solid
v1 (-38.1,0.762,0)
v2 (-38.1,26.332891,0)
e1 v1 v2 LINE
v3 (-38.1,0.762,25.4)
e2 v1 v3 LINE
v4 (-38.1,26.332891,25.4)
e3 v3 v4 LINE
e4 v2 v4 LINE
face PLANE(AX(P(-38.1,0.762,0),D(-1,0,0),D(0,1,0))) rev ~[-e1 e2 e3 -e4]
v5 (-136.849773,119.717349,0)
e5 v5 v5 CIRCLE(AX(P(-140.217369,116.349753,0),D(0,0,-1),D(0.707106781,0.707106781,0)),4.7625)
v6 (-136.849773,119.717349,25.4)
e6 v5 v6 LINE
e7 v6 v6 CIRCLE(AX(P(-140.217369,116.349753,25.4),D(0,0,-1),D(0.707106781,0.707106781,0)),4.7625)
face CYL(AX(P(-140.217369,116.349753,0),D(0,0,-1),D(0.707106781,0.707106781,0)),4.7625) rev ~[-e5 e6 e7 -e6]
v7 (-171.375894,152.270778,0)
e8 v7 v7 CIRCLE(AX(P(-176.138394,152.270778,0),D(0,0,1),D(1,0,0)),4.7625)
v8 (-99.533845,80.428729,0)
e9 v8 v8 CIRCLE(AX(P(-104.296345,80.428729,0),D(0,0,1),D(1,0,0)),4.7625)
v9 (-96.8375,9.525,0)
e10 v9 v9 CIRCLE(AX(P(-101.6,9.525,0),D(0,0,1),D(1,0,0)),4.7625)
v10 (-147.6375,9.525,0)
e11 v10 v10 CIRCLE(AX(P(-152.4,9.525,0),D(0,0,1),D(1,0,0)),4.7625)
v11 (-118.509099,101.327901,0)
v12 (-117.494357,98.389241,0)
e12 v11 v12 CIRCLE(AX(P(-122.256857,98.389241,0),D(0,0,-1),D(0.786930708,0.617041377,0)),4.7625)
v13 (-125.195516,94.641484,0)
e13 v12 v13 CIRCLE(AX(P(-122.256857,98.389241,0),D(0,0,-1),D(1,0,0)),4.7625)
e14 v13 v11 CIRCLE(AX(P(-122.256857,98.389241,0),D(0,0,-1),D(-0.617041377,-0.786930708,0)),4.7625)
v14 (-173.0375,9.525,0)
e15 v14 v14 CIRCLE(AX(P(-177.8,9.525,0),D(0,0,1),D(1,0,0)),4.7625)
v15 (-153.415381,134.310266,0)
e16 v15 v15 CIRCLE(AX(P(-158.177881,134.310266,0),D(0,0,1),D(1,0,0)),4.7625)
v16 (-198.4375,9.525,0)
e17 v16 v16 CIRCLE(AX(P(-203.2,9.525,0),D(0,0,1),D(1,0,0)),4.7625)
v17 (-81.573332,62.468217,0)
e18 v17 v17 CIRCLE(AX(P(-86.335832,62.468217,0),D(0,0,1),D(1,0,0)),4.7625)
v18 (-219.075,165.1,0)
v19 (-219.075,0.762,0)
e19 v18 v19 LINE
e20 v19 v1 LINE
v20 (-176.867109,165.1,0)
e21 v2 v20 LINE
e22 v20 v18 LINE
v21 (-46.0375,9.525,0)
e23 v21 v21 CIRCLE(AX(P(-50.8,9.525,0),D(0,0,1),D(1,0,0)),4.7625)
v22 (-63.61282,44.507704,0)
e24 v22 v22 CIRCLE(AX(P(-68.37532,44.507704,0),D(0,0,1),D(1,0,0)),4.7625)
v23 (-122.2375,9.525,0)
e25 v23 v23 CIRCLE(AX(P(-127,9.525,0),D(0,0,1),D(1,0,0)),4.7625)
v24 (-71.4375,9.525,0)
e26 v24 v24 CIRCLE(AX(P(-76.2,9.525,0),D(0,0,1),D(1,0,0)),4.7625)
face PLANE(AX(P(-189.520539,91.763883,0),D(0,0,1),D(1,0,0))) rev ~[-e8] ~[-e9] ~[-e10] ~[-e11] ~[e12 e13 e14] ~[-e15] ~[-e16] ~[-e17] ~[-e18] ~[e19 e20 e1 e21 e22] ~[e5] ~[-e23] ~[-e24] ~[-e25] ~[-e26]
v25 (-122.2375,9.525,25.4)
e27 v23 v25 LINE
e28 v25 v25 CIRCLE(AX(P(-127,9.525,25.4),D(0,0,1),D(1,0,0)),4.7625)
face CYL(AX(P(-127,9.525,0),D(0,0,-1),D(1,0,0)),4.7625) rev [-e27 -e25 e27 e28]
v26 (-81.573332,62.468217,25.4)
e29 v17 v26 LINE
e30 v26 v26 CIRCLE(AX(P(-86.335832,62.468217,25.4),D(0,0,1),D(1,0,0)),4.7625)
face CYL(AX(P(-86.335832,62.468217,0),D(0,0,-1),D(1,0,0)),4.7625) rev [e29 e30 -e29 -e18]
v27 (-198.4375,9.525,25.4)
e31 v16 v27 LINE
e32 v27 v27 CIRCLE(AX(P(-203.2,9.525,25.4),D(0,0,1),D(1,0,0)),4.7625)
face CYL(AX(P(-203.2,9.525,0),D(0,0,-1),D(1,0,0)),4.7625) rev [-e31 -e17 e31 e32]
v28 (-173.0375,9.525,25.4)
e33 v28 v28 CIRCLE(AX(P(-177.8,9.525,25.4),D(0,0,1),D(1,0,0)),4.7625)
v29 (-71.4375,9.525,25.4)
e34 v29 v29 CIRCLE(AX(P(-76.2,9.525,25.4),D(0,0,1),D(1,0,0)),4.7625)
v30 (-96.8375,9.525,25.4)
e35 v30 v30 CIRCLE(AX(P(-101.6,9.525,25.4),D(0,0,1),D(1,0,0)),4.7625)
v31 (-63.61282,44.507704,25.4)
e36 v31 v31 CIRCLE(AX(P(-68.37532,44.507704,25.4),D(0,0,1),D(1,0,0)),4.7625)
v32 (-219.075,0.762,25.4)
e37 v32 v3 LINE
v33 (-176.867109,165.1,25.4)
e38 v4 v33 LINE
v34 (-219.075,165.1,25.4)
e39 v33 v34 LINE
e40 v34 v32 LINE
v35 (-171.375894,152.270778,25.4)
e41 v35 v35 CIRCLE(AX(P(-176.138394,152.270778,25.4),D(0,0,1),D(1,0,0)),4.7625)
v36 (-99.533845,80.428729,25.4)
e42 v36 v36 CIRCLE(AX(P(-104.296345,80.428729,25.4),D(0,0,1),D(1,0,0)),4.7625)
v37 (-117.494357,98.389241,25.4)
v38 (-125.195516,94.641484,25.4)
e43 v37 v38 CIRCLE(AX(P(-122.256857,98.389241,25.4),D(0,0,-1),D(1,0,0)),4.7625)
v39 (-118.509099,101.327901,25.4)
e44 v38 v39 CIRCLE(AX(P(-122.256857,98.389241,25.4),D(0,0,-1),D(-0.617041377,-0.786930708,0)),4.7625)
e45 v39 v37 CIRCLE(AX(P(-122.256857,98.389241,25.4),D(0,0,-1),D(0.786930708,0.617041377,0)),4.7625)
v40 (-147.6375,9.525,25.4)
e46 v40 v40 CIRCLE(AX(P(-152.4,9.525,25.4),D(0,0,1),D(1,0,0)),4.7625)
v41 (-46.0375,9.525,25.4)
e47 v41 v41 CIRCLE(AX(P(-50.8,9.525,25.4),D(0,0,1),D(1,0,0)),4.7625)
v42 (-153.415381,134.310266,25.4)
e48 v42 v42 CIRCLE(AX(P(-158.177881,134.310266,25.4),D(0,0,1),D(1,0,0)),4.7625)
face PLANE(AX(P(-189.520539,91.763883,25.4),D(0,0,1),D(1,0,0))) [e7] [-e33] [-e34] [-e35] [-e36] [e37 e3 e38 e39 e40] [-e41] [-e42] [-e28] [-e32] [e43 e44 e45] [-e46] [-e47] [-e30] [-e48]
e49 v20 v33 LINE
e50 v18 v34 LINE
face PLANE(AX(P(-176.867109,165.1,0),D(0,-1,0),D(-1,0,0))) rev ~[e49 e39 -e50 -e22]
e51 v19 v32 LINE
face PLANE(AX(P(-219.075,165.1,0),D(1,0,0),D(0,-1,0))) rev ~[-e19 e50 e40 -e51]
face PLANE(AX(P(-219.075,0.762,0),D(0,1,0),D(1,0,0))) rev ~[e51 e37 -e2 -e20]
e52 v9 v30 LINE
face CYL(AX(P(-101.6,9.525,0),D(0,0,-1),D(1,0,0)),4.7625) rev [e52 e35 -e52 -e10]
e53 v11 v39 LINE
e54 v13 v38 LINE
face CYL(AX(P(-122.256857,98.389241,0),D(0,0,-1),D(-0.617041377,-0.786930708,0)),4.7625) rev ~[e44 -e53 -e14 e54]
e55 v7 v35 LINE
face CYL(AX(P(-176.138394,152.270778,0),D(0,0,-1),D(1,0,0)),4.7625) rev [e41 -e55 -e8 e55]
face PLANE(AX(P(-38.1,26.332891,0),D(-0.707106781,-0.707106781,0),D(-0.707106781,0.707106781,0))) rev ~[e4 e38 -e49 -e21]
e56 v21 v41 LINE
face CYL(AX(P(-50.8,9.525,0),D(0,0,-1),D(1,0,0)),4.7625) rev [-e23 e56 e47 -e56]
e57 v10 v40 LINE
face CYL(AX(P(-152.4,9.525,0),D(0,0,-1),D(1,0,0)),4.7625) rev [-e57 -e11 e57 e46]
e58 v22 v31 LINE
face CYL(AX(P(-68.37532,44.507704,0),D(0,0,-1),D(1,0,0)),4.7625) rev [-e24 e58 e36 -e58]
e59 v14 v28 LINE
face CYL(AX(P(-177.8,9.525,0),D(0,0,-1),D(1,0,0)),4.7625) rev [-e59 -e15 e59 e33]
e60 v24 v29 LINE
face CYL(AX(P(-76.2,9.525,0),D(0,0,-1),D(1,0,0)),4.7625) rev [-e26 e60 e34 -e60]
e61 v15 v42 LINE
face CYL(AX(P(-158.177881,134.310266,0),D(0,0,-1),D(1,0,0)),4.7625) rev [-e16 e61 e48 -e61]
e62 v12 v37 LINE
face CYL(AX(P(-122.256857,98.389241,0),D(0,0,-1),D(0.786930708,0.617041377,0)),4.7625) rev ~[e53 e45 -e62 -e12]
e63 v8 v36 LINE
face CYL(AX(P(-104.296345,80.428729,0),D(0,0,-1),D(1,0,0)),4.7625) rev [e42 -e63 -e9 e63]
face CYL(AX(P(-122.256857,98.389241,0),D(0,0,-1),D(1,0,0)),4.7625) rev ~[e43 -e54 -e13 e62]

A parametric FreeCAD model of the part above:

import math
import FreeCAD as App
import Part
import Sketcher
from FreeCAD import Vector
Q = App.Units.Quantity


def add_polygon(sketch, points):
    """Adds a closed chain of lines whose ends are joined by coincident constraints."""
    first, n = sketch.GeometryCount, len(points)
    for a, b in zip(points, points[1:] + points[:1]):
        sketch.addGeometry(Part.LineSegment(App.Vector(*a, 0), App.Vector(*b, 0)), False)
    for i in range(n):
        sketch.addConstraint(Sketcher.Constraint("Coincident", first + i, 2, first + (i + 1) % n, 1))

doc = App.newDocument("Part")
body = doc.addObject("PartDesign::Body", "Body")

# Sketch on XY plane
sketch1 = body.newObject("Sketcher::SketchObject", "Sketch")
sketch1.AttachmentSupport = (doc.getObject("XY_Plane"), [""])
sketch1.MapMode = "FlatFace"
add_polygon(sketch1, [(-176.9, 165.1), (-219.1, 165.1), (-219.1, 0.8), (-38.1, 0.8), (-38.1, 26.3)])  # lines 0-4
sketch1.addGeometry(Part.Circle(Vector(-203.2, 9.5, 0), Vector(0, 0, 1), 4.8), False)  # 5
sketch1.addGeometry(Part.Circle(Vector(-177.8, 9.5, 0), Vector(0, 0, 1), 4.8), False)  # 6
sketch1.addGeometry(Part.Circle(Vector(-152.4, 9.5, 0), Vector(0, 0, 1), 4.8), False)  # 7
sketch1.addGeometry(Part.Circle(Vector(-127, 9.5, 0), Vector(0, 0, 1), 4.8), False)  # 8
sketch1.addGeometry(Part.Circle(Vector(-101.6, 9.5, 0), Vector(0, 0, 1), 4.8), False)  # 9
sketch1.addGeometry(Part.Circle(Vector(-76.2, 9.5, 0), Vector(0, 0, 1), 4.8), False)  # 10
sketch1.addGeometry(Part.Circle(Vector(-50.8, 9.5, 0), Vector(0, 0, 1), 4.8), False)  # 11
sketch1.addGeometry(Part.Circle(Vector(-104.3, 80.4, 0), Vector(0, 0, 1), 4.8), False)  # 12
sketch1.addGeometry(Part.Circle(Vector(-68.4, 44.5, 0), Vector(0, 0, 1), 4.8), False)  # 13
sketch1.addGeometry(Part.Circle(Vector(-86.3, 62.5, 0), Vector(0, 0, 1), 4.8), False)  # 14
sketch1.addGeometry(Part.Circle(Vector(-140.2, 116.3, 0), Vector(0, 0, 1), 4.8), False)  # 15
sketch1.addGeometry(Part.Circle(Vector(-176.1, 152.3, 0), Vector(0, 0, 1), 4.8), False)  # 16
sketch1.addGeometry(Part.Circle(Vector(-158.2, 134.3, 0), Vector(0, 0, 1), 4.8), False)  # 17
sketch1.addGeometry(Part.ArcOfCircle(Part.Circle(Vector(-122.3, 98.4, 0), Vector(0, 0, 1), 4.8), math.radians(38), math.radians(232)), False)  # 18
sketch1.addGeometry(Part.ArcOfCircle(Part.Circle(Vector(-122.3, 98.4, 0), Vector(0, 0, 1), 4.8), math.radians(0), math.radians(38)), False)  # 19
sketch1.addGeometry(Part.ArcOfCircle(Part.Circle(Vector(-122.3, 98.4, 0), Vector(0, 0, 1), 4.8), math.radians(-128), math.radians(0)), False)  # 20
sketch1.addConstraint([
    Sketcher.Constraint("Tangent", 18, 1, 19, 2),
    Sketcher.Constraint("Tangent", 19, 1, 20, 2),
    Sketcher.Constraint("Tangent", 20, 1, 18, 2),
    Sketcher.Constraint("Horizontal", 0),
    Sketcher.Constraint("Vertical", 1),
    Sketcher.Constraint("Horizontal", 2),
    Sketcher.Constraint("Vertical", 3),
    Sketcher.Constraint("Equal", 5, 6),
    Sketcher.Constraint("Equal", 6, 7),
    Sketcher.Constraint("Equal", 7, 8),
    Sketcher.Constraint("Equal", 8, 9),
    Sketcher.Constraint("Equal", 9, 10),
    Sketcher.Constraint("Equal", 10, 11),
    Sketcher.Constraint("Equal", 11, 12),
    Sketcher.Constraint("Equal", 12, 13),
    Sketcher.Constraint("Equal", 13, 14),
    Sketcher.Constraint("Equal", 14, 15),
    Sketcher.Constraint("Equal", 15, 16),
    Sketcher.Constraint("Equal", 16, 17),
    Sketcher.Constraint("Equal", 17, 18),
    Sketcher.Constraint("Horizontal", 5, 3, 6, 3),
    Sketcher.Constraint("Horizontal", 6, 3, 7, 3),
    Sketcher.Constraint("Horizontal", 7, 3, 8, 3),
    Sketcher.Constraint("Horizontal", 8, 3, 9, 3),
    Sketcher.Constraint("Horizontal", 9, 3, 10, 3),
    Sketcher.Constraint("Horizontal", 10, 3, 11, 3),
    Sketcher.Constraint("Horizontal", 20, 3, 19, 1),
    Sketcher.Constraint("Diameter", 5, Q("0.375 in")),
    Sketcher.Constraint("DistanceX", 5, 3, -1, 1, Q("8 in")),
    Sketcher.Constraint("DistanceX", 6, 3, -1, 1, Q("7 in")),
    Sketcher.Constraint("DistanceX", 7, 3, -1, 1, Q("6 in")),
    Sketcher.Constraint("DistanceX", 8, 3, -1, 1, Q("5 in")),
    Sketcher.Constraint("DistanceX", 9, 3, -1, 1, Q("4 in")),
    Sketcher.Constraint("DistanceX", 10, 3, -1, 1, Q("3 in")),
    Sketcher.Constraint("DistanceX", 11, 3, -1, 1, Q("2 in")),
    Sketcher.Constraint("Angle", 4, Q("135 deg")),
    Sketcher.Constraint("DistanceY", 1, 2, 1, 1, Q("6.47 in")),
    Sketcher.Constraint("DistanceY", -1, 1, 0, 2, Q("6.5 in")),
    Sketcher.Constraint("DistanceX", 2, 2, -1, 1, Q("1.5 in")),
    Sketcher.Constraint("DistanceX", 2, 1, 2, 2, Q("7.125 in")),
    Sketcher.Constraint("DistanceY", -1, 1, 5, 3, Q("0.375 in")),
    Sketcher.Constraint("DistanceX", 0, 2, 0, 1, Q("42.207891 mm")),
    Sketcher.Constraint("DistanceX", 18, 1, -1, 1, Q("118.509099 mm")),
    Sketcher.Constraint("DistanceY", -1, 1, 18, 1, Q("101.327901 mm")),
    Sketcher.Constraint("DistanceY", -1, 1, 12, 3, Q("80.428729 mm")),
    Sketcher.Constraint("DistanceX", 13, 3, -1, 1, Q("68.37532 mm")),
    Sketcher.Constraint("DistanceX", 15, 3, -1, 1, Q("140.217369 mm")),
    Sketcher.Constraint("DistanceX", 17, 3, -1, 1, Q("158.177881 mm")),
    Sketcher.Constraint("DistanceY", -1, 1, 18, 3, Q("98.389241 mm")),
    Sketcher.Constraint("DistanceY", 13, 3, 15, 3, Q("71.842049 mm")),
    Sketcher.Constraint("DistanceX", 16, 3, 12, 3, Q("71.842049 mm")),
    Sketcher.Constraint("DistanceY", 12, 3, 16, 3, Q("71.842049 mm")),
    Sketcher.Constraint("DistanceX", 16, 3, 14, 3, Q("89.802561 mm")),
    Sketcher.Constraint("DistanceY", 14, 3, 16, 3, Q("89.802561 mm")),
    Sketcher.Constraint("DistanceX", 17, 3, 14, 3, Q("71.842049 mm")),
    Sketcher.Constraint("DistanceY", 14, 3, 17, 3, Q("71.842049 mm")),
    Sketcher.Constraint("DistanceX", 20, 1, 18, 3, Q("2.93866 mm")),
    Sketcher.Constraint("DistanceY", -1, 1, 13, 3, Q("44.507704 mm")),
])
pad1 = body.newObject("PartDesign::Pad", "Pad")
pad1.Profile = sketch1
pad1.Length = Q("1 in")

doc.recompute()
